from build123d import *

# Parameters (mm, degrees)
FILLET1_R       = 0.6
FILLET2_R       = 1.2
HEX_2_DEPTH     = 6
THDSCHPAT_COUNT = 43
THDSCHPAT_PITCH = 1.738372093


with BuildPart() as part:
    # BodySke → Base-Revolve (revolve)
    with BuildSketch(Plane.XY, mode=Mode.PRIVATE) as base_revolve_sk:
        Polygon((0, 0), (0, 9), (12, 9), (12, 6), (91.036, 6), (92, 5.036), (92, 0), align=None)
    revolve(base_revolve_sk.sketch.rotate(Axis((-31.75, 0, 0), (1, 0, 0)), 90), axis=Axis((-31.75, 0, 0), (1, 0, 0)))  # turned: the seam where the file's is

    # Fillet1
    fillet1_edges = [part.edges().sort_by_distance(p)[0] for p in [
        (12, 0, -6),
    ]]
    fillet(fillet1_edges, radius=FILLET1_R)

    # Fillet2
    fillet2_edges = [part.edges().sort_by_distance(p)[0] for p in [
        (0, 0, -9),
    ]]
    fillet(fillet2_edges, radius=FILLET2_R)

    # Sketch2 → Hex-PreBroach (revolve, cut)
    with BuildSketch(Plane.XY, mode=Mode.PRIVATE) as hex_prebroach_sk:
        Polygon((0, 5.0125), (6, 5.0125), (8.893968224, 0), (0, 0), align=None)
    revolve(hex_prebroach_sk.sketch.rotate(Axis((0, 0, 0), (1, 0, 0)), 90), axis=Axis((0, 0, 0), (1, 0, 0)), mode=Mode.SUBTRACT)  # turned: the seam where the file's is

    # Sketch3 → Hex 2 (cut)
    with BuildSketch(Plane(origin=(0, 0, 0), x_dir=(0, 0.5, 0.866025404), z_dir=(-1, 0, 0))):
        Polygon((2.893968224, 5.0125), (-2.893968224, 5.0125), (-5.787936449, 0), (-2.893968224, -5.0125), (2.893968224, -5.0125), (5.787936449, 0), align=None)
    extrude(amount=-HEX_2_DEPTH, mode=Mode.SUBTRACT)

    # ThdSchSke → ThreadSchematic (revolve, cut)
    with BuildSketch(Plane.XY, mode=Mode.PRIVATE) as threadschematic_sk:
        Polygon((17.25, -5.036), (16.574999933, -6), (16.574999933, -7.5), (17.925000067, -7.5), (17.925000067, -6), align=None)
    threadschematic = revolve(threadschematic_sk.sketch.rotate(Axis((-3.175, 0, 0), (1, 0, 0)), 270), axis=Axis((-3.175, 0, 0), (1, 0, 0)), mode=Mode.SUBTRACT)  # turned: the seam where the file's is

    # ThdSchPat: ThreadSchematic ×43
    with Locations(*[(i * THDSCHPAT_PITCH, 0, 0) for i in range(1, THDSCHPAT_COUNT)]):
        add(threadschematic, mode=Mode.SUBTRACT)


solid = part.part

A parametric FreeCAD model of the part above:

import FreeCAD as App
import Part
import Sketcher
Q = App.Units.Quantity


def edges_at(feature, points):
    """Names of the edges that pass closest to the given points."""
    edges = feature.Shape.Edges
    near = lambda p: min(range(len(edges)), key=lambda i: edges[i].distToShape(Part.Vertex(*p))[0])
    return sorted({f"Edge{near(p) + 1}" for p in points})


def add_polygon(sketch, points):
    """Adds a closed chain of lines whose ends are joined by coincident constraints."""
    first, n = sketch.GeometryCount, len(points)
    for a, b in zip(points, points[1:] + points[:1]):
        sketch.addGeometry(Part.LineSegment(App.Vector(*a, 0), App.Vector(*b, 0)), False)
    for i in range(n):
        sketch.addConstraint(Sketcher.Constraint("Coincident", first + i, 2, first + (i + 1) % n, 1))

doc = App.newDocument("Part")
body = doc.addObject("PartDesign::Body", "Body")

sketch1 = body.newObject("Sketcher::SketchObject", "Sketch")
sketch1.AttachmentSupport = (doc.getObject("XY_Plane"), [""])
sketch1.MapMode = "FlatFace"
add_polygon(sketch1, [(0, 9), (0, 0), (92, 0), (92, 5.036), (91.036, 6), (12, 6), (12, 9)])
sketch1.addConstraint(Sketcher.Constraint("Vertical", 0))
sketch1.addConstraint(Sketcher.Constraint("Horizontal", 1))
sketch1.addConstraint(Sketcher.Constraint("Vertical", 2))
sketch1.addConstraint(Sketcher.Constraint("Horizontal", 4))
sketch1.addConstraint(Sketcher.Constraint("Vertical", 5))
sketch1.addConstraint(Sketcher.Constraint("Horizontal", 6))
sketch1.addConstraint(Sketcher.Constraint("Coincident", 0, 2, -1, 1))
sketch1.addConstraint(Sketcher.Constraint("DistanceX", 1, 1, 1, 2, 92.0))
sketch1.addConstraint(Sketcher.Constraint("DistanceX", 6, 2, 6, 1, 12.0))
sketch1.addConstraint(Sketcher.Constraint("DistanceY", 0, 2, 0, 1, 9.0))
sketch1.addConstraint(Sketcher.Constraint("DistanceY", 5, 1, 5, 2, 3.0))
sketch1.addConstraint(Sketcher.Constraint("Angle", 3, Q("135 deg")))
sketch1.addConstraint(Sketcher.Constraint("DistanceX", 4, 2, 4, 1, 79.036))
revolution = body.newObject("PartDesign::Revolution", "Revolution")
revolution.Profile = sketch1
revolution.ReferenceAxis = (sketch1, ["H_Axis"])
revolution.Angle = 360
doc.recompute()

fillet = body.newObject("PartDesign::Fillet", "Fillet")
fillet.Base = (revolution, edges_at(revolution, [(12, 0, -6)]))
fillet.Radius = 0.6
doc.recompute()

fillet2 = body.newObject("PartDesign::Fillet", "Fillet001")
fillet2.Base = (fillet, edges_at(fillet, [(0, 0, -9)]))
fillet2.Radius = 1.2

sketch2 = body.newObject("Sketcher::SketchObject", "Sketch001")
sketch2.AttachmentSupport = (doc.getObject("XY_Plane"), [""])
sketch2.MapMode = "FlatFace"
add_polygon(sketch2, [(6, 5.0125), (0, 5.0125), (0, 0), (8.893968, 0)])
sketch2.addConstraint(Sketcher.Constraint("Horizontal", 0))
sketch2.addConstraint(Sketcher.Constraint("Vertical", 1))
sketch2.addConstraint(Sketcher.Constraint("Horizontal", 2))
sketch2.addConstraint(Sketcher.Constraint("Coincident", 1, 2, -1, 1))
sketch2.addConstraint(Sketcher.Constraint("DistanceX", 0, 2, 0, 1, 6.0))
sketch2.addConstraint(Sketcher.Constraint("Angle", 3, Q("120 deg")))
sketch2.addConstraint(Sketcher.Constraint("DistanceY", 1, 2, 1, 1, 5.0125))
groove = body.newObject("PartDesign::Groove", "Groove")
groove.Profile = sketch2
groove.ReferenceAxis = (sketch2, ["H_Axis"])
groove.Angle = 360

sketch3 = body.newObject("Sketcher::SketchObject", "Sketch002")
sketch3.AttachmentSupport = (doc.getObject("YZ_Plane"), [""])
sketch3.MapMode = "FlatFace"
add_polygon(sketch3, [(5.787936, 0), (2.893968, -5.0125), (-2.893968, -5.0125), (-5.787936, 0), (-2.893968, 5.0125), (2.893968, 5.0125)])
sketch3.addConstraint(Sketcher.Constraint("Horizontal", 1))
sketch3.addConstraint(Sketcher.Constraint("Horizontal", 4))
sketch3.addConstraint(Sketcher.Constraint("Symmetric", 0, 2, 3, 2, -1, 1))
sketch3.addConstraint(Sketcher.Constraint("Symmetric", 2, 2, 5, 2, -1, 1))
sketch3.addConstraint(Sketcher.Constraint("PointOnObject", 2, 2, -1))
sketch3.addConstraint(Sketcher.Constraint("Parallel", 2, 5))
sketch3.addConstraint(Sketcher.Constraint("Vertical", 1, 2, 3, 2))
sketch3.addConstraint(Sketcher.Constraint("Angle", 0, Q("-120 deg")))
sketch3.addConstraint(Sketcher.Constraint("DistanceY", 1, 2, 3, 2, 10.025))
sketch3.addConstraint(Sketcher.Constraint("DistanceX", 1, 2, 1, 1, 5.787936))
pocket1 = body.newObject("PartDesign::Pocket", "Pocket")
pocket1.Profile = sketch3
pocket1.Length = 6
pocket1.Reversed = True

sketch4 = body.newObject("Sketcher::SketchObject", "Sketch003")
sketch4.AttachmentSupport = (doc.getObject("XY_Plane"), [""])
sketch4.MapMode = "FlatFace"
add_polygon(sketch4, [(17.25, -5.036), (16.575, -6), (16.575, -7.5), (17.925, -7.5), (17.925, -6)])
sketch4.addConstraint(Sketcher.Constraint("Vertical", 1))
sketch4.addConstraint(Sketcher.Constraint("Horizontal", 2))
sketch4.addConstraint(Sketcher.Constraint("Vertical", 3))
sketch4.addConstraint(Sketcher.Constraint("Horizontal", 0, 2, 3, 2))
sketch4.addConstraint(Sketcher.Constraint("Equal", 0, 4))
sketch4.addConstraint(Sketcher.Constraint("Angle", 0, Q("-125 deg")))
sketch4.addConstraint(Sketcher.Constraint("DistanceY", 1, 2, 1, 1, 1.5))
sketch4.addConstraint(Sketcher.Constraint("DistanceY", 0, 2, -1, 1, 6.0))
sketch4.addConstraint(Sketcher.Constraint("DistanceX", 2, 1, 2, 2, 1.35))
sketch4.addConstraint(Sketcher.Constraint("DistanceX", -1, 1, 4, 2, 17.25))
groove2 = body.newObject("PartDesign::Groove", "Groove001")
groove2.Profile = sketch4
groove2.ReferenceAxis = (sketch4, ["H_Axis"])
groove2.Angle = 360
doc.recompute()

linearpattern = body.newObject("PartDesign::LinearPattern", "LinearPattern")
linearpattern.Originals = [groove2]
linearpattern.Direction = (doc.getObject("X_Axis"), [""])
linearpattern.Mode = "offset"
linearpattern.Offset = 1.738372
linearpattern.Occurrences = 43
body.Tip = linearpattern

doc.recompute()
